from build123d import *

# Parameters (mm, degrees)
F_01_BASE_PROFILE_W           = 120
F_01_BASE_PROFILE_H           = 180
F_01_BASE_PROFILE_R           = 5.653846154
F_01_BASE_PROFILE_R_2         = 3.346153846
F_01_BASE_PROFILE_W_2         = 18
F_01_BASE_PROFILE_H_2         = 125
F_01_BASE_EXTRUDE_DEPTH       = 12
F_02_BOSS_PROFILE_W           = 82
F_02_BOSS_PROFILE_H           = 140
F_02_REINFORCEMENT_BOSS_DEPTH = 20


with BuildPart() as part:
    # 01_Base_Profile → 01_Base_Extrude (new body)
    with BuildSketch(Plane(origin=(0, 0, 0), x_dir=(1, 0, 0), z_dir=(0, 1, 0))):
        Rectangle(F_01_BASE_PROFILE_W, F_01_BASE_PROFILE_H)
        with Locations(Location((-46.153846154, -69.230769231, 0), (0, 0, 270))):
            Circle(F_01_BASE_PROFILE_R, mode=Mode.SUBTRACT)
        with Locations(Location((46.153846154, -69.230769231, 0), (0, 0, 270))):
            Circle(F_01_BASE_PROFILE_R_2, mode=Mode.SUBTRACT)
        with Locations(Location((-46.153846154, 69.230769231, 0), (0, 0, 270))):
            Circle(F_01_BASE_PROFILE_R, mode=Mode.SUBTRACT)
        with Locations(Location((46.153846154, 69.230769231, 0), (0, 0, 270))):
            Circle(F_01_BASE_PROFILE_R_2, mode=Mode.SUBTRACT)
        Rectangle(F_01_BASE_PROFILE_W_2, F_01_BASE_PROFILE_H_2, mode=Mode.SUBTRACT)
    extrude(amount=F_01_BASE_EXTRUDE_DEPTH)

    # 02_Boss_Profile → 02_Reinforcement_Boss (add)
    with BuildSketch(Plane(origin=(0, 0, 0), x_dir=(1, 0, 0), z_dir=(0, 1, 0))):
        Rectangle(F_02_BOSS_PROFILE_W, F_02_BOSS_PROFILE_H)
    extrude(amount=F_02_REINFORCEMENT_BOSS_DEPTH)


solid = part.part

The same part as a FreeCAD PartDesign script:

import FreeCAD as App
import Part
import Sketcher

doc = App.newDocument("Part")
body = doc.addObject("PartDesign::Body", "Body")

sketch1 = doc.addObject("Sketcher::SketchObject", "Sketch")
body.addObject(sketch1)
sketch1.AttachmentSupport = (doc.XZ_Plane, [""])
sketch1.MapMode = "FlatFace"
sketch1.addGeometry([
    Part.LineSegment(App.Vector(-60, -90, 0), App.Vector(-60, 90, 0)),
    Part.LineSegment(App.Vector(-60, 90, 0), App.Vector(60, 90, 0)),
    Part.LineSegment(App.Vector(60, 90, 0), App.Vector(60, -90, 0)),
    Part.LineSegment(App.Vector(60, -90, 0), App.Vector(-60, -90, 0)),
    Part.Circle(App.Vector(-46.2, 69.2, 0), App.Vector(0, 0, 1), 5.7),
    Part.Circle(App.Vector(46.2, 69.2, 0), App.Vector(0, 0, 1), 3.3),
    Part.Circle(App.Vector(-46.2, -69.2, 0), App.Vector(0, 0, 1), 5.7),
    Part.LineSegment(App.Vector(9, 62.5, 0), App.Vector(-9, 62.5, 0)),
    Part.LineSegment(App.Vector(-9, 62.5, 0), App.Vector(-9, -62.5, 0)),
    Part.LineSegment(App.Vector(-9, -62.5, 0), App.Vector(9, -62.5, 0)),
    Part.LineSegment(App.Vector(9, -62.5, 0), App.Vector(9, 62.5, 0)),
    Part.Circle(App.Vector(46.2, -69.2, 0), App.Vector(0, 0, 1), 3.3),
], False)
sketch1.addConstraint([
    Sketcher.Constraint("Coincident", 0, 2, 1, 1),
    Sketcher.Constraint("Coincident", 1, 2, 2, 1),
    Sketcher.Constraint("Coincident", 2, 2, 3, 1),
    Sketcher.Constraint("Coincident", 3, 2, 0, 1),
    Sketcher.Constraint("Coincident", 7, 2, 8, 1),
    Sketcher.Constraint("Coincident", 8, 2, 9, 1),
    Sketcher.Constraint("Coincident", 9, 2, 10, 1),
    Sketcher.Constraint("Coincident", 10, 2, 7, 1),
    Sketcher.Constraint("Vertical", 0),
    Sketcher.Constraint("Horizontal", 1),
    Sketcher.Constraint("Vertical", 2),
    Sketcher.Constraint("Horizontal", 3),
    Sketcher.Constraint("Horizontal", 7),
    Sketcher.Constraint("Vertical", 8),
    Sketcher.Constraint("Horizontal", 9),
    Sketcher.Constraint("Vertical", 10),
    Sketcher.Constraint("Equal", 4, 6),
    Sketcher.Constraint("Equal", 5, 11),
    Sketcher.Constraint("Symmetric", 5, 3, 6, 3, -1, 1),
    Sketcher.Constraint("Symmetric", 4, 3, 11, 3, -1, 1),
    Sketcher.Constraint("Symmetric", 0, 2, 2, 2, -1, 1),
    Sketcher.Constraint("Symmetric", 7, 2, 9, 2, -1, 1),
    Sketcher.Constraint("Symmetric", 4, 3, 5, 3, -2),
    Sketcher.Constraint("DistanceX", 1, 1, 1, 2, 120.0),
    Sketcher.Constraint("DistanceX", 7, 2, 7, 1, 18.0),
    Sketcher.Constraint("DistanceY", 0, 1, 0, 2, 180.0),
    Sketcher.Constraint("DistanceY", 8, 2, 8, 1, 125.0),
    Sketcher.Constraint("Diameter", 4, 11.307692),
    Sketcher.Constraint("Diameter", 5, 6.692308),
    Sketcher.Constraint("DistanceY", -1, 1, 4, 3, 69.230769),
    Sketcher.Constraint("DistanceX", 4, 3, -1, 1, 46.153846),
])
pad1 = doc.addObject("PartDesign::Pad", "Pad")
body.addObject(pad1)
pad1.Profile = sketch1
pad1.Length = 12
pad1.Reversed = True

sketch2 = doc.addObject("Sketcher::SketchObject", "Sketch001")
body.addObject(sketch2)
sketch2.AttachmentSupport = (doc.XZ_Plane, [""])
sketch2.MapMode = "FlatFace"
sketch2.addGeometry([
    Part.LineSegment(App.Vector(-41, -70, 0), App.Vector(-41, 70, 0)),
    Part.LineSegment(App.Vector(-41, 70, 0), App.Vector(41, 70, 0)),
    Part.LineSegment(App.Vector(41, 70, 0), App.Vector(41, -70, 0)),
    Part.LineSegment(App.Vector(41, -70, 0), App.Vector(-41, -70, 0)),
], False)
sketch2.addConstraint([
    Sketcher.Constraint("Coincident", 0, 2, 1, 1),
    Sketcher.Constraint("Coincident", 1, 2, 2, 1),
    Sketcher.Constraint("Coincident", 2, 2, 3, 1),
    Sketcher.Constraint("Coincident", 3, 2, 0, 1),
    Sketcher.Constraint("Vertical", 0),
    Sketcher.Constraint("Horizontal", 1),
    Sketcher.Constraint("Vertical", 2),
    Sketcher.Constraint("Horizontal", 3),
    Sketcher.Constraint("Symmetric", 0, 2, 2, 2, -1, 1),
    Sketcher.Constraint("DistanceX", 1, 1, 1, 2, 82.0),
    Sketcher.Constraint("DistanceY", 0, 1, 0, 2, 140.0),
])
pad2 = doc.addObject("PartDesign::Pad", "Pad001")
body.addObject(pad2)
pad2.Profile = sketch2
pad2.Length = 20
pad2.Reversed = True

doc.recompute()
